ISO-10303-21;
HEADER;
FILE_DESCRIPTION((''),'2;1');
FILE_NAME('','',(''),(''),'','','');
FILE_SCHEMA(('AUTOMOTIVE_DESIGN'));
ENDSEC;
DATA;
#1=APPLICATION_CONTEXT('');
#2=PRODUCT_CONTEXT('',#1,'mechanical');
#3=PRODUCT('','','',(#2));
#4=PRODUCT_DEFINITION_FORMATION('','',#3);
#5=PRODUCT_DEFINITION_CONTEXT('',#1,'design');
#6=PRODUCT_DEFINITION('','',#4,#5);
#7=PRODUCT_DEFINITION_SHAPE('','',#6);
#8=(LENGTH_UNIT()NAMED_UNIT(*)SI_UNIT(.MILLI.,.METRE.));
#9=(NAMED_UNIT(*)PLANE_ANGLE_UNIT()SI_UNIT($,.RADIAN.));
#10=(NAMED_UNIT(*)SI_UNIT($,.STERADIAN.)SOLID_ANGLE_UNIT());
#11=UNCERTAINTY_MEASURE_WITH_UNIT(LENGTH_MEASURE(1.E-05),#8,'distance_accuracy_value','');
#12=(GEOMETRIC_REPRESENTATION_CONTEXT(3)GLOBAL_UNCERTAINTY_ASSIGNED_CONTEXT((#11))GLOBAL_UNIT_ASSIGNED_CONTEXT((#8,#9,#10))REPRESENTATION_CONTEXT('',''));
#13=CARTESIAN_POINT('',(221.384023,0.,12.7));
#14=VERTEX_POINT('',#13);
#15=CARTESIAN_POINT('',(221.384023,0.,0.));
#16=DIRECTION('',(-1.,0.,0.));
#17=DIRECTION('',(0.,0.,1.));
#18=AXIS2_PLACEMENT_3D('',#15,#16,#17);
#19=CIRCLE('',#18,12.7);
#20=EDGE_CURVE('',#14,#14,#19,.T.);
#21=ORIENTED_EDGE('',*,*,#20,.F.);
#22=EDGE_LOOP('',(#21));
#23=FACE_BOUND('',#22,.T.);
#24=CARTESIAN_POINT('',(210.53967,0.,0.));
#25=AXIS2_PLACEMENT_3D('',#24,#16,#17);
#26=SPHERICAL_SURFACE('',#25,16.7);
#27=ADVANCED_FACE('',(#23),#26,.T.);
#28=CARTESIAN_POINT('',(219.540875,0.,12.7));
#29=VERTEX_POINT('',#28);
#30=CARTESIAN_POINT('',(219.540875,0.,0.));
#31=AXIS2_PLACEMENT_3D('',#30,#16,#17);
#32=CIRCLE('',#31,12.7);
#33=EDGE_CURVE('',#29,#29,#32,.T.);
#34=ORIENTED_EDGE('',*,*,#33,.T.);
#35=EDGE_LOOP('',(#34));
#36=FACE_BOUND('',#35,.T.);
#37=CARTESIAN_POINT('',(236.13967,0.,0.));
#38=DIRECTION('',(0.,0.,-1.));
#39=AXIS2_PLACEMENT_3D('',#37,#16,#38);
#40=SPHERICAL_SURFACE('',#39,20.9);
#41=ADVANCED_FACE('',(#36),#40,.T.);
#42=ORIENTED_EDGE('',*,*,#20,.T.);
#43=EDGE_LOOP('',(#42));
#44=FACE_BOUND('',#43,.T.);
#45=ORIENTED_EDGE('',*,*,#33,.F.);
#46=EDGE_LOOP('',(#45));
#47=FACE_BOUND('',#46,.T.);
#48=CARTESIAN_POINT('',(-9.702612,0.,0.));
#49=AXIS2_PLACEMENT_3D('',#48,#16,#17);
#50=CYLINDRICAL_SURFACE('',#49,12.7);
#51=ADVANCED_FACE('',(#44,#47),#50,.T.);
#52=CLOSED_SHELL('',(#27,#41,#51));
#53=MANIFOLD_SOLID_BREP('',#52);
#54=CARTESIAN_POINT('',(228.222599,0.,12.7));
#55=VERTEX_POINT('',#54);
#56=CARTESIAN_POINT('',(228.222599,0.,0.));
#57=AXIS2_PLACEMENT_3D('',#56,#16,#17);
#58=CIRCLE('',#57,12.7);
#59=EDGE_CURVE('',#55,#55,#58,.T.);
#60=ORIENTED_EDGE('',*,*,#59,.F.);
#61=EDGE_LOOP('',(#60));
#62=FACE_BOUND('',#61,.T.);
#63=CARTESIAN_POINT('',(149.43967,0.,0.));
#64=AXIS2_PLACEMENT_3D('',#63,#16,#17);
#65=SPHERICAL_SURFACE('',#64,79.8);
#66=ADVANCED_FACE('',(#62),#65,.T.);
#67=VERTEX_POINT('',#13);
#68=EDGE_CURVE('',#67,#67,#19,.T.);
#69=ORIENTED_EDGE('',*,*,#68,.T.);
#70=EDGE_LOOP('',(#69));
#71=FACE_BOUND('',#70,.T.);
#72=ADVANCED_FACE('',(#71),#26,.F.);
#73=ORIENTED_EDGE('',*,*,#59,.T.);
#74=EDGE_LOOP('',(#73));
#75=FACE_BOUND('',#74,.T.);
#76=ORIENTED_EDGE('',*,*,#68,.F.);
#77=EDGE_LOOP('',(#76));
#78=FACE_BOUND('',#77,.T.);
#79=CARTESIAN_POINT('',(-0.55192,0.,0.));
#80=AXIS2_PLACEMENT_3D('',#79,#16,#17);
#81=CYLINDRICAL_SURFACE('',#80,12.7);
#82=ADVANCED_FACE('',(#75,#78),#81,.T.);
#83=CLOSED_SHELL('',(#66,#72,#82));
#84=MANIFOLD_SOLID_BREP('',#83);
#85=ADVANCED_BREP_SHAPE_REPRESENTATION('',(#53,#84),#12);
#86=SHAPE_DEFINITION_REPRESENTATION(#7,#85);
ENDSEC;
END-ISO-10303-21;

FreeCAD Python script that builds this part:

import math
import FreeCAD as App
import Part
import Sketcher

V = App.Vector
Q = App.Units.Quantity

doc = App.newDocument("Part")
params = doc.addObject("Spreadsheet::Sheet", "Params")
for row, (alias, value) in enumerate([
    ("sketch1_radius", "20.9 mm"),
    ("sketch1_radius2", "16.7 mm"),
    ("sketch1_width", "12 mm"),
    ("revolution_angle", "360 deg"),
    ("sketch2_radius", "16.7 mm"),
    ("sketch2_radius2", "79.8 mm"),
    ("sketch2_width", "2 mm"),
    ("revolution2_angle", "360 deg"),
], start=1):
    params.set(f"A{row}", alias)
    params.set(f"B{row}", "=" + value)
    params.setAlias(f"B{row}", alias)

body = doc.addObject("PartDesign::Body", "Body")

sketch1 = body.newObject("Sketcher::SketchObject", "Sketch")
sketch1.AttachmentSupport = (doc.getObject("XZ_Plane"), [""])
sketch1.MapMode = "FlatFace"
sketch1.addGeometry(Part.ArcOfCircle(Part.Circle(V(236.1, 0, 0), V(0, 0, 1), 20.9), math.radians(-180), math.radians(-143)), False)
sketch1.addGeometry(Part.LineSegment(V(215.2, 0, 0), V(227.2, 0, 0)), False)
sketch1.addGeometry(Part.ArcOfCircle(Part.Circle(V(210.5, 0, 0), V(0, 0, 1), 16.7), math.radians(-50), math.radians(0)), False)
sketch1.addGeometry(Part.LineSegment(V(221.4, -12.7, 0), V(219.5, -12.7, 0)), False)
sketch1.addConstraint(Sketcher.Constraint("Coincident", 0, 1, 1, 1))
sketch1.addConstraint(Sketcher.Constraint("Coincident", 1, 2, 2, 2))
sketch1.addConstraint(Sketcher.Constraint("Coincident", 2, 1, 3, 1))
sketch1.addConstraint(Sketcher.Constraint("Coincident", 3, 2, 0, 2))
sketch1.addConstraint(Sketcher.Constraint("Horizontal", 1))
sketch1.addConstraint(Sketcher.Constraint("Horizontal", 3))
sketch1.addConstraint(Sketcher.Constraint("PointOnObject", 0, 3, -1))
sketch1.addConstraint(Sketcher.Constraint("PointOnObject", 2, 3, -1))
sketch1.addConstraint(Sketcher.Constraint("PointOnObject", 0, 1, -1))
sketch1.addConstraint(Sketcher.Constraint("Radius", 0, Q("20.9 mm")))
sketch1.addConstraint(Sketcher.Constraint("Radius", 2, Q("16.7 mm")))
sketch1.addConstraint(Sketcher.Constraint("DistanceX", 1, 1, 1, 2, Q("12 mm")))
sketch1.addConstraint(Sketcher.Constraint("DistanceY", 2, 1, -1, 1, Q("12.7 mm")))
sketch1.addConstraint(Sketcher.Constraint("DistanceX", -1, 1, 0, 3, Q("236.13967 mm")))
sketch1.setExpression("Constraints[9]", "Params.sketch1_radius")
sketch1.setExpression("Constraints[10]", "Params.sketch1_radius2")
sketch1.setExpression("Constraints[11]", "Params.sketch1_width")
revolution = body.newObject("PartDesign::Revolution", "Revolution")
revolution.Profile = sketch1
revolution.ReferenceAxis = (sketch1, ["H_Axis"])
revolution.setExpression("Angle", "Params.revolution_angle")
body2 = doc.addObject("PartDesign::Body", "Body001")

sketch2 = body2.newObject("Sketcher::SketchObject", "Sketch001")
sketch2.AttachmentSupport = (doc.getObject("XZ_Plane001"), [""])
sketch2.MapMode = "FlatFace"
sketch2.addGeometry(Part.LineSegment(V(228.2, -12.7, 0), V(221.4, -12.7, 0)), False)
sketch2.addGeometry(Part.ArcOfCircle(Part.Circle(V(210.5, 0, 0), V(0, 0, 1), 16.7), math.radians(-50), math.radians(0)), False)
sketch2.addGeometry(Part.LineSegment(V(227.2, 0, 0), V(229.2, 0, 0)), False)
sketch2.addGeometry(Part.ArcOfCircle(Part.Circle(V(149.4, 0, 0), V(0, 0, 1), 79.8), math.radians(-9.16), math.radians(0)), False)
sketch2.addConstraint(Sketcher.Constraint("Coincident", 0, 2, 1, 1))
sketch2.addConstraint(Sketcher.Constraint("Coincident", 1, 2, 2, 1))
sketch2.addConstraint(Sketcher.Constraint("Coincident", 2, 2, 3, 2))
sketch2.addConstraint(Sketcher.Constraint("Coincident", 3, 1, 0, 1))
sketch2.addConstraint(Sketcher.Constraint("Horizontal", 0))
sketch2.addConstraint(Sketcher.Constraint("Horizontal", 2))
sketch2.addConstraint(Sketcher.Constraint("PointOnObject", 1, 3, -1))
sketch2.addConstraint(Sketcher.Constraint("PointOnObject", 3, 3, -1))
sketch2.addConstraint(Sketcher.Constraint("PointOnObject", 1, 2, -1))
sketch2.addConstraint(Sketcher.Constraint("Radius", 1, Q("16.7 mm")))
sketch2.addConstraint(Sketcher.Constraint("Radius", 3, Q("79.8 mm")))
sketch2.addConstraint(Sketcher.Constraint("DistanceX", 2, 1, 2, 2, Q("2 mm")))
sketch2.addConstraint(Sketcher.Constraint("DistanceY", 0, 2, -1, 1, Q("12.7 mm")))
sketch2.addConstraint(Sketcher.Constraint("DistanceX", -1, 1, 3, 1, Q("228.222599 mm")))
sketch2.setExpression("Constraints[9]", "Params.sketch2_radius")
sketch2.setExpression("Constraints[10]", "Params.sketch2_radius2")
sketch2.setExpression("Constraints[11]", "Params.sketch2_width")
revolution2 = body2.newObject("PartDesign::Revolution", "Revolution001")
revolution2.Profile = sketch2
revolution2.ReferenceAxis = (sketch2, ["H_Axis"])
revolution2.setExpression("Angle", "Params.revolution2_angle")

doc.recompute()
